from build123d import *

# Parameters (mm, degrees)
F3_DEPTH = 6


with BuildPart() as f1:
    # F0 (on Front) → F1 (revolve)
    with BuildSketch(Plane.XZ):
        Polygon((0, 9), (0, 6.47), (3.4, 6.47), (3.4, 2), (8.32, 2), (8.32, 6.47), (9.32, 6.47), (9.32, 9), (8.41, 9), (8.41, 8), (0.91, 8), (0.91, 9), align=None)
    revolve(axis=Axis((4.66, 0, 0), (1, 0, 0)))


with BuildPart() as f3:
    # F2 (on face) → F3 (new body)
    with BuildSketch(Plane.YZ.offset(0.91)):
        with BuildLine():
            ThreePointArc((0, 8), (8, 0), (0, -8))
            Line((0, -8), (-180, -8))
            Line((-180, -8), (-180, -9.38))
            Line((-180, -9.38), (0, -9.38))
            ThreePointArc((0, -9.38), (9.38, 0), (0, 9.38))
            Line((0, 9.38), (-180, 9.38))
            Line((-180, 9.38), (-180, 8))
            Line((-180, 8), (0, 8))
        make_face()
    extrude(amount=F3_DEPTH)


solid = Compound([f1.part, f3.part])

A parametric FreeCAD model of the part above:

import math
import FreeCAD as App
import Part
import Sketcher

doc = App.newDocument("Part")
body = doc.addObject("PartDesign::Body", "Body")

# Sketch on XZ plane
sketch1 = body.newObject("Sketcher::SketchObject", "Sketch")
sketch1.AttachmentSupport = (doc.getObject("XZ_Plane"), [""])
sketch1.MapMode = "FlatFace"
sketch1.addGeometry([
    Part.LineSegment(App.Vector(0, 9, 0), App.Vector(0, 6.47, 0)),  # 0
    Part.LineSegment(App.Vector(0, 6.47, 0), App.Vector(3.4, 6.47, 0)),  # 1
    Part.LineSegment(App.Vector(3.4, 6.47, 0), App.Vector(3.4, 2, 0)),  # 2
    Part.LineSegment(App.Vector(3.4, 2, 0), App.Vector(8.32, 2, 0)),  # 3
    Part.LineSegment(App.Vector(8.32, 2, 0), App.Vector(8.32, 6.47, 0)),  # 4
    Part.LineSegment(App.Vector(8.32, 6.47, 0), App.Vector(9.32, 6.47, 0)),  # 5
    Part.LineSegment(App.Vector(9.32, 6.47, 0), App.Vector(9.32, 9, 0)),  # 6
    Part.LineSegment(App.Vector(9.32, 9, 0), App.Vector(8.41, 9, 0)),  # 7
    Part.LineSegment(App.Vector(8.41, 9, 0), App.Vector(8.41, 8, 0)),  # 8
    Part.LineSegment(App.Vector(8.41, 8, 0), App.Vector(0.91, 8, 0)),  # 9
    Part.LineSegment(App.Vector(0.91, 8, 0), App.Vector(0.91, 9, 0)),  # 10
    Part.LineSegment(App.Vector(0.91, 9, 0), App.Vector(0, 9, 0)),  # 11
], False)
sketch1.addConstraint([
    Sketcher.Constraint("Coincident", 0, 2, 1, 1),
    Sketcher.Constraint("Coincident", 1, 2, 2, 1),
    Sketcher.Constraint("Coincident", 2, 2, 3, 1),
    Sketcher.Constraint("Coincident", 3, 2, 4, 1),
    Sketcher.Constraint("Coincident", 4, 2, 5, 1),
    Sketcher.Constraint("Coincident", 5, 2, 6, 1),
    Sketcher.Constraint("Coincident", 6, 2, 7, 1),
    Sketcher.Constraint("Coincident", 7, 2, 8, 1),
    Sketcher.Constraint("Coincident", 8, 2, 9, 1),
    Sketcher.Constraint("Coincident", 9, 2, 10, 1),
    Sketcher.Constraint("Coincident", 10, 2, 11, 1),
    Sketcher.Constraint("Coincident", 11, 2, 0, 1),
    Sketcher.Constraint("Vertical", 0),
    Sketcher.Constraint("Horizontal", 1),
    Sketcher.Constraint("Vertical", 2),
    Sketcher.Constraint("Horizontal", 3),
    Sketcher.Constraint("Vertical", 4),
    Sketcher.Constraint("Horizontal", 5),
    Sketcher.Constraint("Vertical", 6),
    Sketcher.Constraint("Horizontal", 7),
    Sketcher.Constraint("Vertical", 8),
    Sketcher.Constraint("Horizontal", 9),
    Sketcher.Constraint("Vertical", 10),
    Sketcher.Constraint("Horizontal", 11),
    Sketcher.Constraint("PointOnObject", 0, 2, -2),
    Sketcher.Constraint("Horizontal", 1, 2, 4, 2),
    Sketcher.Constraint("Horizontal", 7, 2, 10, 2),
    Sketcher.Constraint("Equal", 7, 11),
    Sketcher.Constraint("Equal", 5, 8),
    Sketcher.Constraint("DistanceX", 5, 1, 5, 2, 1.0),
    Sketcher.Constraint("DistanceX", 1, 1, 1, 2, 3.4),
    Sketcher.Constraint("DistanceX", 9, 2, 9, 1, 7.5),
    Sketcher.Constraint("DistanceY", -1, 1, 2, 2, 2.0),
    Sketcher.Constraint("DistanceY", -1, 1, 6, 2, 9.0),
    Sketcher.Constraint("DistanceX", 3, 1, 3, 2, 4.92),
    Sketcher.Constraint("DistanceY", 0, 2, 0, 1, 2.53),
])
revolution = body.newObject("PartDesign::Revolution", "Revolution")
revolution.Profile = sketch1
revolution.ReferenceAxis = (sketch1, ["H_Axis"])
revolution.Angle = 360
body2 = doc.addObject("PartDesign::Body", "Body001")

# Sketch on YZ plane
sketch2 = body2.newObject("Sketcher::SketchObject", "Sketch001")
sketch2.AttachmentSupport = (doc.getObject("YZ_Plane001"), [""])
sketch2.MapMode = "FlatFace"
sketch2.AttachmentOffset = App.Placement(App.Vector(0, 0, 0.91), App.Rotation())
sketch2.addGeometry([
    Part.ArcOfCircle(Part.Circle(App.Vector(0, 0, 0), App.Vector(0, 0, 1), 8), math.radians(-90), math.radians(90)),  # 0
    Part.LineSegment(App.Vector(0, -8, 0), App.Vector(-180, -8, 0)),  # 1
    Part.LineSegment(App.Vector(-180, -8, 0), App.Vector(-180, -9.38, 0)),  # 2
    Part.LineSegment(App.Vector(-180, -9.38, 0), App.Vector(0, -9.38, 0)),  # 3
    Part.ArcOfCircle(Part.Circle(App.Vector(0, 0, 0), App.Vector(0, 0, 1), 9.38), math.radians(-90), math.radians(90)),  # 4
    Part.LineSegment(App.Vector(0, 9.38, 0), App.Vector(-180, 9.38, 0)),  # 5
    Part.LineSegment(App.Vector(-180, 9.38, 0), App.Vector(-180, 8, 0)),  # 6
    Part.LineSegment(App.Vector(-180, 8, 0), App.Vector(0, 8, 0)),  # 7
], False)
sketch2.addConstraint([
    Sketcher.Constraint("Tangent", 0, 1, 1, 1),
    Sketcher.Constraint("Coincident", 1, 2, 2, 1),
    Sketcher.Constraint("Coincident", 2, 2, 3, 1),
    Sketcher.Constraint("Tangent", 3, 2, 4, 1),
    Sketcher.Constraint("Tangent", 4, 2, 5, 1),
    Sketcher.Constraint("Coincident", 5, 2, 6, 1),
    Sketcher.Constraint("Coincident", 6, 2, 7, 1),
    Sketcher.Constraint("Tangent", 7, 2, 0, 2),
    Sketcher.Constraint("Horizontal", 1),
    Sketcher.Constraint("Vertical", 2),
    Sketcher.Constraint("Horizontal", 3),
    Sketcher.Constraint("Horizontal", 5),
    Sketcher.Constraint("Vertical", 6),
    Sketcher.Constraint("Horizontal", 7),
    Sketcher.Constraint("Coincident", 0, 3, -1, 1),
    Sketcher.Constraint("Coincident", 4, 3, -1, 1),
    Sketcher.Constraint("Vertical", 2, 2, 5, 2),
    Sketcher.Constraint("Radius", 0, 8.0),
    Sketcher.Constraint("DistanceX", 1, 2, 1, 1, 180.0),
    Sketcher.Constraint("Radius", 4, 9.38),
])
pad1 = body2.newObject("PartDesign::Pad", "Pad")
pad1.Profile = sketch2
pad1.Length = 6

doc.recompute()
